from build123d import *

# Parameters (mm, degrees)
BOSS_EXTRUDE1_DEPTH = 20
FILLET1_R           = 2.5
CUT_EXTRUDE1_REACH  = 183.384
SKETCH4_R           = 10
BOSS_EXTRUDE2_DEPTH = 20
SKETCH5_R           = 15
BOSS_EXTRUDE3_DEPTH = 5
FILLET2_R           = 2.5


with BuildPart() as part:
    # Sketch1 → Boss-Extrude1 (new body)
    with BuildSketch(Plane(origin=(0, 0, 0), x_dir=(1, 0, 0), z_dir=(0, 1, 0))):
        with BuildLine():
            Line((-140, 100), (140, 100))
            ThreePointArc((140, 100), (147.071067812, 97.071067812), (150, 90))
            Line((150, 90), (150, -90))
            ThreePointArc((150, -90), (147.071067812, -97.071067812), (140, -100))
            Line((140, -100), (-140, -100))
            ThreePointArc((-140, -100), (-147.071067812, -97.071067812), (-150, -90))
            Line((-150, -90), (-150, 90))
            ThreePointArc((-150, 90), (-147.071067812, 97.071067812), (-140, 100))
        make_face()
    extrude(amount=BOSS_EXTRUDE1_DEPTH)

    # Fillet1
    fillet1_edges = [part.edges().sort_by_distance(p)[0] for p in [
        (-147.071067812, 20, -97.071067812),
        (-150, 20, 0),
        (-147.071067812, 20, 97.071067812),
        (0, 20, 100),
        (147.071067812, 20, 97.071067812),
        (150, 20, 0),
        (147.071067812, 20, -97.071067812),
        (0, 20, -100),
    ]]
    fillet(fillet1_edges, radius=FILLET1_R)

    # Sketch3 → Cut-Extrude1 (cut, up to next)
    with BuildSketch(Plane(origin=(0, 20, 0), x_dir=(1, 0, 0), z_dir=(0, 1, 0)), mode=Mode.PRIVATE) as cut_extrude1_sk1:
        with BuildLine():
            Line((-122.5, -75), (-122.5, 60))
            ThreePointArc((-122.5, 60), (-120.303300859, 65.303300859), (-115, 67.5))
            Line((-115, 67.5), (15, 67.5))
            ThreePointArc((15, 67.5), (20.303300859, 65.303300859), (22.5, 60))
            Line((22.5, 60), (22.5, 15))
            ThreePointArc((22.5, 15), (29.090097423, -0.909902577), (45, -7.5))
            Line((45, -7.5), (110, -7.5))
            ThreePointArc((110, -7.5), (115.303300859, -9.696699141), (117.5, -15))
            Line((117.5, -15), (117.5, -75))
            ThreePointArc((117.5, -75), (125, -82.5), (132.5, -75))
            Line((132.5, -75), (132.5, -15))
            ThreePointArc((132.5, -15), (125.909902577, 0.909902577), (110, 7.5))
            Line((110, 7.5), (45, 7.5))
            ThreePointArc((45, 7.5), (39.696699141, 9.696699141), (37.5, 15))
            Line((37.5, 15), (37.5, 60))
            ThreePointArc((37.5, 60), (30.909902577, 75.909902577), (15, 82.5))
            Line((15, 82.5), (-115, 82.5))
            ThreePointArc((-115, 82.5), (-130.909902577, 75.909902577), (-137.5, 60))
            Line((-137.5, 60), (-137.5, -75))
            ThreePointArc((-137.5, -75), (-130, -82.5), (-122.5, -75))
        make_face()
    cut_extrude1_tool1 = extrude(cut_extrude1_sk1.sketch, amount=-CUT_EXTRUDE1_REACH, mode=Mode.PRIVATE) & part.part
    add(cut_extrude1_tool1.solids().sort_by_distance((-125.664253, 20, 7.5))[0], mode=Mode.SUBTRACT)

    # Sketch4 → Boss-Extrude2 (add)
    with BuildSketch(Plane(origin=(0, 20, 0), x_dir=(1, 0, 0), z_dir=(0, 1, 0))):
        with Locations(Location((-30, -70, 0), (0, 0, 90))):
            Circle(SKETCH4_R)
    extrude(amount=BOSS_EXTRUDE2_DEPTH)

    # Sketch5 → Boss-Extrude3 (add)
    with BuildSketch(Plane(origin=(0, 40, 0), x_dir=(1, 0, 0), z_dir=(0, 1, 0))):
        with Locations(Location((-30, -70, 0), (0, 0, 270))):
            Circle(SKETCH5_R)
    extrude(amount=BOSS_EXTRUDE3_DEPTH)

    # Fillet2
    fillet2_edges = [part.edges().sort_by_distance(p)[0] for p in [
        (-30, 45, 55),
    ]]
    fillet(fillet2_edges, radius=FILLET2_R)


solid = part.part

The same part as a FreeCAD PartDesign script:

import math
import FreeCAD as App
import Part
import Sketcher

V = App.Vector


def edges_at(feature, points):
    """Names of the edges that pass closest to the given points."""
    edges = feature.Shape.Edges
    near = lambda p: min(range(len(edges)), key=lambda i: edges[i].distToShape(Part.Vertex(*p))[0])
    return sorted({f"Edge{near(p) + 1}" for p in points})

doc = App.newDocument("Part")
body = doc.addObject("PartDesign::Body", "Body")

sketch1 = body.newObject("Sketcher::SketchObject", "Sketch")
sketch1.AttachmentSupport = (doc.getObject("XZ_Plane"), [""])
sketch1.MapMode = "FlatFace"
sketch1.addGeometry(Part.LineSegment(V(140, -100, 0), V(-140, -100, 0)), False)
sketch1.addGeometry(Part.ArcOfCircle(Part.Circle(V(-140, -90, 0), V(0, 0, 1), 10), math.radians(180), math.radians(270)), False)
sketch1.addGeometry(Part.LineSegment(V(-150, -90, 0), V(-150, 90, 0)), False)
sketch1.addGeometry(Part.ArcOfCircle(Part.Circle(V(-140, 90, 0), V(0, 0, 1), 10), math.radians(90), math.radians(180)), False)
sketch1.addGeometry(Part.LineSegment(V(-140, 100, 0), V(140, 100, 0)), False)
sketch1.addGeometry(Part.ArcOfCircle(Part.Circle(V(140, 90, 0), V(0, 0, 1), 10), math.radians(0), math.radians(90)), False)
sketch1.addGeometry(Part.LineSegment(V(150, 90, 0), V(150, -90, 0)), False)
sketch1.addGeometry(Part.ArcOfCircle(Part.Circle(V(140, -90, 0), V(0, 0, 1), 10), math.radians(-90), math.radians(0)), False)
sketch1.addConstraint(Sketcher.Constraint("Tangent", 0, 2, 1, 2))
sketch1.addConstraint(Sketcher.Constraint("Tangent", 1, 1, 2, 1))
sketch1.addConstraint(Sketcher.Constraint("Tangent", 2, 2, 3, 2))
sketch1.addConstraint(Sketcher.Constraint("Tangent", 3, 1, 4, 1))
sketch1.addConstraint(Sketcher.Constraint("Tangent", 4, 2, 5, 2))
sketch1.addConstraint(Sketcher.Constraint("Tangent", 5, 1, 6, 1))
sketch1.addConstraint(Sketcher.Constraint("Tangent", 6, 2, 7, 2))
sketch1.addConstraint(Sketcher.Constraint("Tangent", 7, 1, 0, 1))
sketch1.addConstraint(Sketcher.Constraint("Horizontal", 0))
sketch1.addConstraint(Sketcher.Constraint("Vertical", 2))
sketch1.addConstraint(Sketcher.Constraint("Horizontal", 4))
sketch1.addConstraint(Sketcher.Constraint("Vertical", 6))
sketch1.addConstraint(Sketcher.Constraint("Equal", 1, 3))
sketch1.addConstraint(Sketcher.Constraint("Equal", 3, 5))
sketch1.addConstraint(Sketcher.Constraint("Equal", 5, 7))
sketch1.addConstraint(Sketcher.Constraint("Symmetric", 1, 3, 5, 3, -1, 1))
sketch1.addConstraint(Sketcher.Constraint("Radius", 1, 10.0))
sketch1.addConstraint(Sketcher.Constraint("DistanceX", 0, 2, 0, 1, 280.0))
sketch1.addConstraint(Sketcher.Constraint("DistanceY", 2, 1, 2, 2, 180.0))
pad1 = body.newObject("PartDesign::Pad", "Pad")
pad1.Profile = sketch1
pad1.Length = 20
pad1.Reversed = True
doc.recompute()

fillet = body.newObject("PartDesign::Fillet", "Fillet")
fillet.Base = (pad1, edges_at(pad1, [
    (-147.071, 20, -97.071),
    (-150, 20, 0),
    (-147.071, 20, 97.071),
    (0, 20, 100),
    (147.071, 20, 97.071),
    (150, 20, 0),
    (147.071, 20, -97.071),
    (0, 20, -100),
]))
fillet.Radius = 2.5

sketch2 = body.newObject("Sketcher::SketchObject", "Sketch001")
sketch2.AttachmentSupport = (doc.getObject("XZ_Plane"), [""])
sketch2.MapMode = "FlatFace"
sketch2.AttachmentOffset = App.Placement(V(0, 0, -20), App.Rotation())
sketch2.addGeometry(Part.LineSegment(V(-122.5, 75, 0), V(-122.5, -60, 0)), False)
sketch2.addGeometry(Part.ArcOfCircle(Part.Circle(V(-115, -60, 0), V(0, 0, 1), 7.5), math.radians(180), math.radians(270)), False)
sketch2.addGeometry(Part.LineSegment(V(-115, -67.5, 0), V(15, -67.5, 0)), False)
sketch2.addGeometry(Part.ArcOfCircle(Part.Circle(V(15, -60, 0), V(0, 0, 1), 7.5), math.radians(-90), math.radians(0)), False)
sketch2.addGeometry(Part.LineSegment(V(22.5, -60, 0), V(22.5, -15, 0)), False)
sketch2.addGeometry(Part.ArcOfCircle(Part.Circle(V(45, -15, 0), V(0, 0, 1), 22.5), math.radians(90), math.radians(180)), False)
sketch2.addGeometry(Part.LineSegment(V(45, 7.5, 0), V(110, 7.5, 0)), False)
sketch2.addGeometry(Part.ArcOfCircle(Part.Circle(V(110, 15, 0), V(0, 0, 1), 7.5), math.radians(-90), math.radians(0)), False)
sketch2.addGeometry(Part.LineSegment(V(117.5, 15, 0), V(117.5, 75, 0)), False)
sketch2.addGeometry(Part.ArcOfCircle(Part.Circle(V(125, 75, 0), V(0, 0, 1), 7.5), math.radians(0), math.radians(180)), False)
sketch2.addGeometry(Part.LineSegment(V(132.5, 75, 0), V(132.5, 15, 0)), False)
sketch2.addGeometry(Part.ArcOfCircle(Part.Circle(V(110, 15, 0), V(0, 0, 1), 22.5), math.radians(-90), math.radians(0)), False)
sketch2.addGeometry(Part.LineSegment(V(110, -7.5, 0), V(45, -7.5, 0)), False)
sketch2.addGeometry(Part.ArcOfCircle(Part.Circle(V(45, -15, 0), V(0, 0, 1), 7.5), math.radians(90), math.radians(180)), False)
sketch2.addGeometry(Part.LineSegment(V(37.5, -15, 0), V(37.5, -60, 0)), False)
sketch2.addGeometry(Part.ArcOfCircle(Part.Circle(V(15, -60, 0), V(0, 0, 1), 22.5), math.radians(-90), math.radians(0)), False)
sketch2.addGeometry(Part.LineSegment(V(15, -82.5, 0), V(-115, -82.5, 0)), False)
sketch2.addGeometry(Part.ArcOfCircle(Part.Circle(V(-115, -60, 0), V(0, 0, 1), 22.5), math.radians(180), math.radians(270)), False)
sketch2.addGeometry(Part.LineSegment(V(-137.5, -60, 0), V(-137.5, 75, 0)), False)
sketch2.addGeometry(Part.ArcOfCircle(Part.Circle(V(-130, 75, 0), V(0, 0, 1), 7.5), math.radians(0), math.radians(180)), False)
sketch2.addConstraint(Sketcher.Constraint("Tangent", 0, 2, 1, 1))
sketch2.addConstraint(Sketcher.Constraint("Tangent", 1, 2, 2, 1))
sketch2.addConstraint(Sketcher.Constraint("Tangent", 2, 2, 3, 1))
sketch2.addConstraint(Sketcher.Constraint("Tangent", 3, 2, 4, 1))
sketch2.addConstraint(Sketcher.Constraint("Tangent", 4, 2, 5, 2))
sketch2.addConstraint(Sketcher.Constraint("Tangent", 5, 1, 6, 1))
sketch2.addConstraint(Sketcher.Constraint("Tangent", 6, 2, 7, 1))
sketch2.addConstraint(Sketcher.Constraint("Tangent", 7, 2, 8, 1))
sketch2.addConstraint(Sketcher.Constraint("Tangent", 8, 2, 9, 2))
sketch2.addConstraint(Sketcher.Constraint("Tangent", 9, 1, 10, 1))
sketch2.addConstraint(Sketcher.Constraint("Tangent", 10, 2, 11, 2))
sketch2.addConstraint(Sketcher.Constraint("Tangent", 11, 1, 12, 1))
sketch2.addConstraint(Sketcher.Constraint("Tangent", 12, 2, 13, 1))
sketch2.addConstraint(Sketcher.Constraint("Tangent", 13, 2, 14, 1))
sketch2.addConstraint(Sketcher.Constraint("Tangent", 14, 2, 15, 2))
sketch2.addConstraint(Sketcher.Constraint("Tangent", 15, 1, 16, 1))
sketch2.addConstraint(Sketcher.Constraint("Tangent", 16, 2, 17, 2))
sketch2.addConstraint(Sketcher.Constraint("Tangent", 17, 1, 18, 1))
sketch2.addConstraint(Sketcher.Constraint("Tangent", 18, 2, 19, 2))
sketch2.addConstraint(Sketcher.Constraint("Tangent", 19, 1, 0, 1))
sketch2.addConstraint(Sketcher.Constraint("Vertical", 0))
sketch2.addConstraint(Sketcher.Constraint("Horizontal", 2))
sketch2.addConstraint(Sketcher.Constraint("Vertical", 4))
sketch2.addConstraint(Sketcher.Constraint("Horizontal", 6))
sketch2.addConstraint(Sketcher.Constraint("Vertical", 8))
sketch2.addConstraint(Sketcher.Constraint("Vertical", 10))
sketch2.addConstraint(Sketcher.Constraint("Horizontal", 12))
sketch2.addConstraint(Sketcher.Constraint("Vertical", 14))
sketch2.addConstraint(Sketcher.Constraint("Horizontal", 16))
sketch2.addConstraint(Sketcher.Constraint("Vertical", 18))
sketch2.addConstraint(Sketcher.Constraint("Coincident", 11, 3, 7, 3))
sketch2.addConstraint(Sketcher.Constraint("Coincident", 13, 3, 5, 3))
sketch2.addConstraint(Sketcher.Constraint("Coincident", 15, 3, 3, 3))
sketch2.addConstraint(Sketcher.Constraint("Coincident", 17, 3, 1, 3))
sketch2.addConstraint(Sketcher.Constraint("Equal", 1, 3))
sketch2.addConstraint(Sketcher.Constraint("Equal", 3, 7))
sketch2.addConstraint(Sketcher.Constraint("Equal", 7, 9))
sketch2.addConstraint(Sketcher.Constraint("Equal", 5, 11))
sketch2.addConstraint(Sketcher.Constraint("Horizontal", 9, 3, 19, 3))
sketch2.addConstraint(Sketcher.Constraint("Radius", 1, 7.5))
sketch2.addConstraint(Sketcher.Constraint("DistanceX", 2, 1, 2, 2, 130.0))
sketch2.addConstraint(Sketcher.Constraint("DistanceX", 6, 1, 6, 2, 65.0))
sketch2.addConstraint(Sketcher.Constraint("DistanceY", 0, 2, 0, 1, 135.0))
sketch2.addConstraint(Sketcher.Constraint("DistanceY", 4, 1, 4, 2, 45.0))
sketch2.addConstraint(Sketcher.Constraint("DistanceX", 1, 3, -1, 1, 115.0))
sketch2.addConstraint(Sketcher.Constraint("DistanceY", 1, 3, -1, 1, 60.0))
pocket1 = body.newObject("PartDesign::Pocket", "Pocket")
pocket1.Profile = sketch2
pocket1.Type = "UpToFirst"
pocket1.Reversed = True

sketch3 = body.newObject("Sketcher::SketchObject", "Sketch002")
sketch3.AttachmentSupport = (doc.getObject("XZ_Plane"), [""])
sketch3.MapMode = "FlatFace"
sketch3.AttachmentOffset = App.Placement(V(0, 0, -20), App.Rotation())
sketch3.addGeometry(Part.Circle(V(-30, 70, 0), V(0, 0, 1), 10), False)
sketch3.addConstraint(Sketcher.Constraint("Diameter", 0, 20.0))
sketch3.addConstraint(Sketcher.Constraint("DistanceX", 0, 3, -1, 1, 30.0))
sketch3.addConstraint(Sketcher.Constraint("DistanceY", -1, 1, 0, 3, 70.0))
pad2 = body.newObject("PartDesign::Pad", "Pad001")
pad2.Profile = sketch3
pad2.Length = 20
pad2.Reversed = True

sketch4 = body.newObject("Sketcher::SketchObject", "Sketch003")
sketch4.AttachmentSupport = (doc.getObject("XZ_Plane"), [""])
sketch4.MapMode = "FlatFace"
sketch4.AttachmentOffset = App.Placement(V(0, 0, -40), App.Rotation())
sketch4.addGeometry(Part.Circle(V(-30, 70, 0), V(0, 0, 1), 15), False)
sketch4.addConstraint(Sketcher.Constraint("Diameter", 0, 30.0))
sketch4.addConstraint(Sketcher.Constraint("DistanceX", 0, 3, -1, 1, 30.0))
sketch4.addConstraint(Sketcher.Constraint("DistanceY", -1, 1, 0, 3, 70.0))
pad3 = body.newObject("PartDesign::Pad", "Pad002")
pad3.Profile = sketch4
pad3.Length = 5
pad3.Reversed = True
doc.recompute()

fillet2 = body.newObject("PartDesign::Fillet", "Fillet001")
fillet2.Base = (pad3, edges_at(pad3, [(-30, 45, 55)]))
fillet2.Radius = 2.5

doc.recompute()
